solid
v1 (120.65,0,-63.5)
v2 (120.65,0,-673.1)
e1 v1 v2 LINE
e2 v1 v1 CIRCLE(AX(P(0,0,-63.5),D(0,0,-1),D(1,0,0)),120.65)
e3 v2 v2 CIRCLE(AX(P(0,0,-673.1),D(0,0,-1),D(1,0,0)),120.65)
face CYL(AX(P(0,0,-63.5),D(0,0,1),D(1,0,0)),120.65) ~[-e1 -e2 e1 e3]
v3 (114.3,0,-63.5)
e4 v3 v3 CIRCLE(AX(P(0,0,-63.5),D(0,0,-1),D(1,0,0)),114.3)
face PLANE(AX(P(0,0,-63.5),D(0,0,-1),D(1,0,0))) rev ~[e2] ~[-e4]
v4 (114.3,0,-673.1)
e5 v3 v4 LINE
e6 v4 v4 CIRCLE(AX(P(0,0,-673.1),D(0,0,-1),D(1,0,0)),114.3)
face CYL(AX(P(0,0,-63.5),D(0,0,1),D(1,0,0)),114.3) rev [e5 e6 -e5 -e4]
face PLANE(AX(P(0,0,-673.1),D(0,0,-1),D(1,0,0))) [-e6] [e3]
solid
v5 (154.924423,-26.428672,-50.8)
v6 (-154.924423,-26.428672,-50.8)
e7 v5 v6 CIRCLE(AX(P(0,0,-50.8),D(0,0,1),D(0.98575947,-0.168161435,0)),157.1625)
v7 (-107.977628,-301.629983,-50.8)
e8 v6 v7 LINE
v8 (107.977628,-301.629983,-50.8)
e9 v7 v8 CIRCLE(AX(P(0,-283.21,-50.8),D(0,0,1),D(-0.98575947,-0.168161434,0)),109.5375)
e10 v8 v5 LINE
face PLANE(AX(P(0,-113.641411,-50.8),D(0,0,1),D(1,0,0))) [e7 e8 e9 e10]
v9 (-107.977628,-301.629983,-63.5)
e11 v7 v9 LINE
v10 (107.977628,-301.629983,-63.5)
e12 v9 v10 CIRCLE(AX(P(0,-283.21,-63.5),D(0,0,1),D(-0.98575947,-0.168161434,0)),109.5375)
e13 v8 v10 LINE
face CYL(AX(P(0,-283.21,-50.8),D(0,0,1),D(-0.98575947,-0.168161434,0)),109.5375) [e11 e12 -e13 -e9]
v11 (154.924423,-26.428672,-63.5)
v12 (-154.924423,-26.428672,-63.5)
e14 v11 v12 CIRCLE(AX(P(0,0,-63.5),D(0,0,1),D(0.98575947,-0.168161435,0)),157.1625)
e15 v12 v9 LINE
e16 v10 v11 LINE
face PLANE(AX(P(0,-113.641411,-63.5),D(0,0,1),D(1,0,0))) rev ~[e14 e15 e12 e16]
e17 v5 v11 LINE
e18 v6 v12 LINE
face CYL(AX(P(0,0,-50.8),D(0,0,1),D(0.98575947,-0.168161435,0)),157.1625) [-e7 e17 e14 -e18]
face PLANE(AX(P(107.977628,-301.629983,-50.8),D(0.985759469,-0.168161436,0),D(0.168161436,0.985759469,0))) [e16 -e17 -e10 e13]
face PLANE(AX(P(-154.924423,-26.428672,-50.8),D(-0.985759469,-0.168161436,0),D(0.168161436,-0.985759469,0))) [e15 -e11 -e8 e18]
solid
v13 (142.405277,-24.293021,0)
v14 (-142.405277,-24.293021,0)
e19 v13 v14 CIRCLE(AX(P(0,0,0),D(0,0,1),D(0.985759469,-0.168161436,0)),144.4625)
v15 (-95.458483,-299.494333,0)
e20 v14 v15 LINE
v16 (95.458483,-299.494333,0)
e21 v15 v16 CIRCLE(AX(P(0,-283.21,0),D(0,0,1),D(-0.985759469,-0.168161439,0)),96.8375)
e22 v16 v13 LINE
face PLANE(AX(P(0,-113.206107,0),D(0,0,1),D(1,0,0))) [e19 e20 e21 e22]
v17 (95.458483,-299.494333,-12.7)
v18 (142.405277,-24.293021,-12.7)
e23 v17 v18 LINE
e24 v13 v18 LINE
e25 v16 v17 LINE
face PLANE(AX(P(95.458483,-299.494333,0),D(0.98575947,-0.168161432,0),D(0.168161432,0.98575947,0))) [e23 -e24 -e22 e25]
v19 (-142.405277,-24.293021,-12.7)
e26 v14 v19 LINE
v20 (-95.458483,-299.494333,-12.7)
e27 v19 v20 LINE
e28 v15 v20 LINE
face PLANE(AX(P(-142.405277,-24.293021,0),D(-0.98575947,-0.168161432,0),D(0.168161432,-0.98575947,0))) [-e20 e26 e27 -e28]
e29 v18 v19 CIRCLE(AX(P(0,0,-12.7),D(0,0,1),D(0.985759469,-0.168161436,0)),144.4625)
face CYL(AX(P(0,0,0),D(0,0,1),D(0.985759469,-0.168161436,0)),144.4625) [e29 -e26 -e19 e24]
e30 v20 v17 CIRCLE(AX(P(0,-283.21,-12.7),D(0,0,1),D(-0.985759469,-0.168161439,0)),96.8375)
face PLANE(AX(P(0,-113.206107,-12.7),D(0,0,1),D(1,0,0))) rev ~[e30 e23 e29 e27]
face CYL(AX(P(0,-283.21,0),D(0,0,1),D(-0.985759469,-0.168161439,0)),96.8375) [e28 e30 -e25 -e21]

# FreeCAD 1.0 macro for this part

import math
import FreeCAD as App
import Part
import Sketcher
Q = App.Units.Quantity

doc = App.newDocument("Part")
body = doc.addObject("PartDesign::Body", "Body")

# Sketch on XY plane
sketch1 = doc.addObject("Sketcher::SketchObject", "Sketch")
body.addObject(sketch1)
sketch1.AttachmentSupport = (doc.XY_Plane, [""])
sketch1.MapMode = "FlatFace"
sketch1.addGeometry([
    Part.LineSegment(App.Vector(95, -299, 0), App.Vector(142, -24, 0)),
    Part.ArcOfCircle(Part.Circle(App.Vector(0, 0, 0), App.Vector(0, 0, 1), 144), math.radians(-10), math.radians(190)),
    Part.LineSegment(App.Vector(-142, -24, 0), App.Vector(-95, -299, 0)),
    Part.ArcOfCircle(Part.Circle(App.Vector(0, -283, 0), App.Vector(0, 0, 1), 97), math.radians(-170), math.radians(-10)),
], False)
sketch1.addConstraint([
    Sketcher.Constraint("Tangent", 0, 2, 1, 1),
    Sketcher.Constraint("Tangent", 1, 2, 2, 1),
    Sketcher.Constraint("Tangent", 2, 2, 3, 1),
    Sketcher.Constraint("Tangent", 3, 2, 0, 1),
    Sketcher.Constraint("Coincident", 1, 3, -1, 1),
    Sketcher.Constraint("PointOnObject", 3, 3, -2),
    Sketcher.Constraint("Radius", 1, Q("5.6875 in")),
    Sketcher.Constraint("Radius", 3, Q("3.8125 in")),
    Sketcher.Constraint("DistanceY", 3, 3, -1, 1, Q("11.15 in")),
])
pad1 = doc.addObject("PartDesign::Pad", "Pad")
body.addObject(pad1)
pad1.Profile = sketch1
pad1.Length = Q("0.5 in")
pad1.Reversed = True
body2 = doc.addObject("PartDesign::Body", "Body001")

# Sketch on XY plane
sketch2 = doc.addObject("Sketcher::SketchObject", "Sketch001")
body2.addObject(sketch2)
sketch2.AttachmentSupport = (doc.getObject("XY_Plane001"), [""])
sketch2.MapMode = "FlatFace"
sketch2.AttachmentOffset = App.Placement(App.Vector(0, 0, -2 * 25.4), App.Rotation())
sketch2.addGeometry([
    Part.ArcOfCircle(Part.Circle(App.Vector(0, 0, 0), App.Vector(0, 0, 1), 157), math.radians(-10), math.radians(190)),
    Part.LineSegment(App.Vector(-155, -26, 0), App.Vector(-108, -302, 0)),
    Part.ArcOfCircle(Part.Circle(App.Vector(0, -283, 0), App.Vector(0, 0, 1), 110), math.radians(-170), math.radians(-10)),
    Part.LineSegment(App.Vector(108, -302, 0), App.Vector(155, -26, 0)),
], False)
sketch2.addConstraint([
    Sketcher.Constraint("Tangent", 0, 2, 1, 1),
    Sketcher.Constraint("Tangent", 1, 2, 2, 1),
    Sketcher.Constraint("Tangent", 2, 2, 3, 1),
    Sketcher.Constraint("Tangent", 3, 2, 0, 1),
    Sketcher.Constraint("Coincident", 0, 3, -1, 1),
    Sketcher.Constraint("PointOnObject", 2, 3, -2),
    Sketcher.Constraint("Radius", 0, Q("6.1875 in")),
    Sketcher.Constraint("Radius", 2, Q("4.3125 in")),
    Sketcher.Constraint("DistanceY", 2, 3, -1, 1, Q("11.15 in")),
])
pad2 = doc.addObject("PartDesign::Pad", "Pad001")
body2.addObject(pad2)
pad2.Profile = sketch2
pad2.Length = Q("0.5 in")
pad2.Reversed = True
body3 = doc.addObject("PartDesign::Body", "Body002")

# Sketch on XY plane
sketch3 = doc.addObject("Sketcher::SketchObject", "Sketch002")
body3.addObject(sketch3)
sketch3.AttachmentSupport = (doc.getObject("XY_Plane002"), [""])
sketch3.MapMode = "FlatFace"
sketch3.AttachmentOffset = App.Placement(App.Vector(0, 0, -2.5 * 25.4), App.Rotation())
sketch3.addGeometry([
    Part.Circle(App.Vector(0, 0, 0), App.Vector(0, 0, 1), 121),
    Part.Circle(App.Vector(0, 0, 0), App.Vector(0, 0, 1), 114),
], False)
sketch3.addConstraint([
    Sketcher.Constraint("Coincident", 0, 3, -1, 1),
    Sketcher.Constraint("Coincident", 1, 3, -1, 1),
    Sketcher.Constraint("Diameter", 1, Q("9 in")),
    Sketcher.Constraint("Diameter", 0, Q("9.5 in")),
])
pad3 = doc.addObject("PartDesign::Pad", "Pad002")
body3.addObject(pad3)
pad3.Profile = sketch3
pad3.Length = Q("24 in")
pad3.Reversed = True

doc.recompute()
